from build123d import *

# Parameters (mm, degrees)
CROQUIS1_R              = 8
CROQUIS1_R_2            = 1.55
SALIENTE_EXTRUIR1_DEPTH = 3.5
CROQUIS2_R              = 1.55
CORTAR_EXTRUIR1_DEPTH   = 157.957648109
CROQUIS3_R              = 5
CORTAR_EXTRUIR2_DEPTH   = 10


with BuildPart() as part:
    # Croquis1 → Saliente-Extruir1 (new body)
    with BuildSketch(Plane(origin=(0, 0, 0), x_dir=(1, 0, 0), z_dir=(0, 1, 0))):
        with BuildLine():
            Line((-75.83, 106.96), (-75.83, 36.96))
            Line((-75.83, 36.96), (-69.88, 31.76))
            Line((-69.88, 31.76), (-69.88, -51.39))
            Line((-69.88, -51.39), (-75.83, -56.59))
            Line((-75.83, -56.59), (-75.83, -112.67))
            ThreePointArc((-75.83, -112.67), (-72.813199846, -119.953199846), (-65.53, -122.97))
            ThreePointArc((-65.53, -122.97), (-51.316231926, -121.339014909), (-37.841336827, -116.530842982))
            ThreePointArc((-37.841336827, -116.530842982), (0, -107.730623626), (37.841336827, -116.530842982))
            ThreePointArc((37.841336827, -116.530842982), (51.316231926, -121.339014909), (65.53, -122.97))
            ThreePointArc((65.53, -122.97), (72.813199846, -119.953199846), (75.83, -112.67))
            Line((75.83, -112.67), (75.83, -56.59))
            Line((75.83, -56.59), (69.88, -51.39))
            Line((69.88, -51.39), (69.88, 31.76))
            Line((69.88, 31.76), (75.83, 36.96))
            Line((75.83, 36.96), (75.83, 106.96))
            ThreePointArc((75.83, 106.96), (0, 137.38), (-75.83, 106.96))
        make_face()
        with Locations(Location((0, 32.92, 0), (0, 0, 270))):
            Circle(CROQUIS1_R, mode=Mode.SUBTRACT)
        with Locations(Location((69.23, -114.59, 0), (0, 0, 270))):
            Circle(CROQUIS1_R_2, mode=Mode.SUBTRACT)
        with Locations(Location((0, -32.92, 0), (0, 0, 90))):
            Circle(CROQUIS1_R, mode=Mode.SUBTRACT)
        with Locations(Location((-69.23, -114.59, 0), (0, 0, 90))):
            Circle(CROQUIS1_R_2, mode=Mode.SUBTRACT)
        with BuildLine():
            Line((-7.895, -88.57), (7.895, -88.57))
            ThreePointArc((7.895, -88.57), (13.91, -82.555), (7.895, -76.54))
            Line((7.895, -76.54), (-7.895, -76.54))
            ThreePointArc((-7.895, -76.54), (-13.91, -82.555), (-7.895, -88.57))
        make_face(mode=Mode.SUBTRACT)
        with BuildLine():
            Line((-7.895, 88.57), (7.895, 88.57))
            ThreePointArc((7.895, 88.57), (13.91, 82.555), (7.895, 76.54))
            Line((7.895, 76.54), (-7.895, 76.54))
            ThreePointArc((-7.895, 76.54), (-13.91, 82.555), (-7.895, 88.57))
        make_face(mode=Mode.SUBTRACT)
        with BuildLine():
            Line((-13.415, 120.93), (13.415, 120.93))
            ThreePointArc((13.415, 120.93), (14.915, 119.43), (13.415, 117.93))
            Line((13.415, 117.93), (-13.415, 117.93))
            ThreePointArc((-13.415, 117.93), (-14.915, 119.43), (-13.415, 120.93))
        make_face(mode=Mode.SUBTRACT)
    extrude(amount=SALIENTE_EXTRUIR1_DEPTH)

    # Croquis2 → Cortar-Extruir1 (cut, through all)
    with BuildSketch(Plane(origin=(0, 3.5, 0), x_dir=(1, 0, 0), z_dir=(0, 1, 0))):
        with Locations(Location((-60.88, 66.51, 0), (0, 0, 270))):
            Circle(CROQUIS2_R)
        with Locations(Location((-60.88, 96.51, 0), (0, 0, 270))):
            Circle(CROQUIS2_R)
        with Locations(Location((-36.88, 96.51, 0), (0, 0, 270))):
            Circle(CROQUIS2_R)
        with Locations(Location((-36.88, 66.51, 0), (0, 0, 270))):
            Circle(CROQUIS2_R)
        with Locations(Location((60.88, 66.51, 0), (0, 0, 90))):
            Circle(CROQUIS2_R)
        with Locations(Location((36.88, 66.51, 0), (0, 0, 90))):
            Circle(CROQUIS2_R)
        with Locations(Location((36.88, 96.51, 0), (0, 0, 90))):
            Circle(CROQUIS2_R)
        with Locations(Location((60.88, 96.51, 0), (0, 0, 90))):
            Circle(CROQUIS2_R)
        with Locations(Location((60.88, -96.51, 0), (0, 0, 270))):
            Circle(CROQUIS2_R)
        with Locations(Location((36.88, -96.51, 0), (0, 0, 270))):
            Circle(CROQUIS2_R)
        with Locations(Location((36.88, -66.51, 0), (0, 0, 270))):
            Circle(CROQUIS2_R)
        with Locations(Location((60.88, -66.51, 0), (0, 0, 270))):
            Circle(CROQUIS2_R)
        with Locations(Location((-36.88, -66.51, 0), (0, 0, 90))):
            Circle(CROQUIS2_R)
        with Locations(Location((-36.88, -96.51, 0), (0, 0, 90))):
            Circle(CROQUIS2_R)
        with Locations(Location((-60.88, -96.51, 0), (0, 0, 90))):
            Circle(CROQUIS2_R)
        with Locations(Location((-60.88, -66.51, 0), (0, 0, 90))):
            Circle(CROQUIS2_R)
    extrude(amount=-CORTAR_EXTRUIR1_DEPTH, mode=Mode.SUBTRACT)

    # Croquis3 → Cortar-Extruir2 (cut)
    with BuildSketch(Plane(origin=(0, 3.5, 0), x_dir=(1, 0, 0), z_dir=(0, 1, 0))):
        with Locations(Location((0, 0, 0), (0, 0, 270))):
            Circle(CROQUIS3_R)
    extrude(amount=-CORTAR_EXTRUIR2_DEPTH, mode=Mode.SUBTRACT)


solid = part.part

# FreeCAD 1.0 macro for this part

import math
import FreeCAD as App
import Part
import Sketcher
from FreeCAD import Vector
Q = App.Units.Quantity

doc = App.newDocument("Part")
body = doc.addObject("PartDesign::Body", "Body")

sketch1 = body.newObject("Sketcher::SketchObject", "Sketch")
sketch1.AttachmentSupport = (doc.getObject("XZ_Plane"), [""])
sketch1.MapMode = "FlatFace"
sketch1.addGeometry(Part.LineSegment(Vector(-75.8, -107, 0), Vector(-75.8, -37, 0)), False)
sketch1.addGeometry(Part.LineSegment(Vector(-75.8, -37, 0), Vector(-69.9, -31.8, 0)), False)
sketch1.addGeometry(Part.LineSegment(Vector(-69.9, -31.8, 0), Vector(-69.9, 51.4, 0)), False)
sketch1.addGeometry(Part.LineSegment(Vector(-69.9, 51.4, 0), Vector(-75.8, 56.6, 0)), False)
sketch1.addGeometry(Part.LineSegment(Vector(-75.8, 56.6, 0), Vector(-75.8, 112.7, 0)), False)
sketch1.addGeometry(Part.ArcOfCircle(Part.Circle(Vector(-65.5, 112.7, 0), Vector(0, 0, 1), 10.3), math.radians(90), math.radians(180)), False)
sketch1.addGeometry(Part.ArcOfCircle(Part.Circle(Vector(-65.5, 60.2, 0), Vector(0, 0, 1), 62.8), math.radians(64), math.radians(90)), False)
sketch1.addGeometry(Part.ArcOfCircle(Part.Circle(Vector(0, 193.5, 0), Vector(0, 0, 1), 85.8), math.radians(-116), math.radians(-64)), False)
sketch1.addGeometry(Part.ArcOfCircle(Part.Circle(Vector(65.5, 60.2, 0), Vector(0, 0, 1), 62.8), math.radians(90), math.radians(116)), False)
sketch1.addGeometry(Part.ArcOfCircle(Part.Circle(Vector(65.5, 112.7, 0), Vector(0, 0, 1), 10.3), math.radians(0), math.radians(90)), False)
sketch1.addGeometry(Part.LineSegment(Vector(75.8, 112.7, 0), Vector(75.8, 56.6, 0)), False)
sketch1.addGeometry(Part.LineSegment(Vector(75.8, 56.6, 0), Vector(69.9, 51.4, 0)), False)
sketch1.addGeometry(Part.LineSegment(Vector(69.9, 51.4, 0), Vector(69.9, -31.8, 0)), False)
sketch1.addGeometry(Part.LineSegment(Vector(69.9, -31.8, 0), Vector(75.8, -37, 0)), False)
sketch1.addGeometry(Part.LineSegment(Vector(75.8, -37, 0), Vector(75.8, -107, 0)), False)
sketch1.addGeometry(Part.ArcOfCircle(Part.Circle(Vector(0, -27.7, 0), Vector(0, 0, 1), 109.7), math.radians(-134), math.radians(-46)), False)
sketch1.addGeometry(Part.Circle(Vector(-69.2, 114.6, 0), Vector(0, 0, 1), 1.6), False)
sketch1.addGeometry(Part.LineSegment(Vector(7.9, 88.6, 0), Vector(-7.9, 88.6, 0)), False)
sketch1.addGeometry(Part.ArcOfCircle(Part.Circle(Vector(-7.9, 82.6, 0), Vector(0, 0, 1), 6), math.radians(90), math.radians(270)), False)
sketch1.addGeometry(Part.LineSegment(Vector(-7.9, 76.5, 0), Vector(7.9, 76.5, 0)), False)
sketch1.addGeometry(Part.ArcOfCircle(Part.Circle(Vector(7.9, 82.6, 0), Vector(0, 0, 1), 6), math.radians(-90), math.radians(90)), False)
sketch1.addGeometry(Part.Circle(Vector(0, 32.9, 0), Vector(0, 0, 1), 8), False)
sketch1.addGeometry(Part.Circle(Vector(69.2, 114.6, 0), Vector(0, 0, 1), 1.6), False)
sketch1.addGeometry(Part.Circle(Vector(0, -32.9, 0), Vector(0, 0, 1), 8), False)
sketch1.addGeometry(Part.ArcOfCircle(Part.Circle(Vector(-7.9, -82.6, 0), Vector(0, 0, 1), 6), math.radians(90), math.radians(270)), False)
sketch1.addGeometry(Part.LineSegment(Vector(-7.9, -88.6, 0), Vector(7.9, -88.6, 0)), False)
sketch1.addGeometry(Part.ArcOfCircle(Part.Circle(Vector(7.9, -82.6, 0), Vector(0, 0, 1), 6), math.radians(-90), math.radians(90)), False)
sketch1.addGeometry(Part.LineSegment(Vector(7.9, -76.5, 0), Vector(-7.9, -76.5, 0)), False)
sketch1.addGeometry(Part.ArcOfCircle(Part.Circle(Vector(-13.4, -119.4, 0), Vector(0, 0, 1), 1.5), math.radians(90), math.radians(270)), False)
sketch1.addGeometry(Part.LineSegment(Vector(-13.4, -120.9, 0), Vector(13.4, -120.9, 0)), False)
sketch1.addGeometry(Part.ArcOfCircle(Part.Circle(Vector(13.4, -119.4, 0), Vector(0, 0, 1), 1.5), math.radians(-90), math.radians(90)), False)
sketch1.addGeometry(Part.LineSegment(Vector(13.4, -117.9, 0), Vector(-13.4, -117.9, 0)), False)
sketch1.addConstraint(Sketcher.Constraint("Coincident", 0, 2, 1, 1))
sketch1.addConstraint(Sketcher.Constraint("Coincident", 1, 2, 2, 1))
sketch1.addConstraint(Sketcher.Constraint("Coincident", 2, 2, 3, 1))
sketch1.addConstraint(Sketcher.Constraint("Coincident", 3, 2, 4, 1))
sketch1.addConstraint(Sketcher.Constraint("Tangent", 4, 2, 5, 2))
sketch1.addConstraint(Sketcher.Constraint("Tangent", 5, 1, 6, 2))
sketch1.addConstraint(Sketcher.Constraint("Tangent", 6, 1, 7, 1))
sketch1.addConstraint(Sketcher.Constraint("Tangent", 7, 2, 8, 2))
sketch1.addConstraint(Sketcher.Constraint("Tangent", 8, 1, 9, 2))
sketch1.addConstraint(Sketcher.Constraint("Tangent", 9, 1, 10, 1))
sketch1.addConstraint(Sketcher.Constraint("Coincident", 10, 2, 11, 1))
sketch1.addConstraint(Sketcher.Constraint("Coincident", 11, 2, 12, 1))
sketch1.addConstraint(Sketcher.Constraint("Coincident", 12, 2, 13, 1))
sketch1.addConstraint(Sketcher.Constraint("Coincident", 13, 2, 14, 1))
sketch1.addConstraint(Sketcher.Constraint("Coincident", 14, 2, 15, 2))
sketch1.addConstraint(Sketcher.Constraint("Coincident", 15, 1, 0, 1))
sketch1.addConstraint(Sketcher.Constraint("Tangent", 17, 2, 18, 1))
sketch1.addConstraint(Sketcher.Constraint("Tangent", 18, 2, 19, 1))
sketch1.addConstraint(Sketcher.Constraint("Tangent", 19, 2, 20, 1))
sketch1.addConstraint(Sketcher.Constraint("Tangent", 20, 2, 17, 1))
sketch1.addConstraint(Sketcher.Constraint("Tangent", 24, 2, 25, 1))
sketch1.addConstraint(Sketcher.Constraint("Tangent", 25, 2, 26, 1))
sketch1.addConstraint(Sketcher.Constraint("Tangent", 26, 2, 27, 1))
sketch1.addConstraint(Sketcher.Constraint("Tangent", 27, 2, 24, 1))
sketch1.addConstraint(Sketcher.Constraint("Tangent", 28, 2, 29, 1))
sketch1.addConstraint(Sketcher.Constraint("Tangent", 29, 2, 30, 1))
sketch1.addConstraint(Sketcher.Constraint("Tangent", 30, 2, 31, 1))
sketch1.addConstraint(Sketcher.Constraint("Tangent", 31, 2, 28, 1))
sketch1.addConstraint(Sketcher.Constraint("Vertical", 0))
sketch1.addConstraint(Sketcher.Constraint("Vertical", 2))
sketch1.addConstraint(Sketcher.Constraint("Vertical", 4))
sketch1.addConstraint(Sketcher.Constraint("Vertical", 10))
sketch1.addConstraint(Sketcher.Constraint("Vertical", 12))
sketch1.addConstraint(Sketcher.Constraint("Vertical", 14))
sketch1.addConstraint(Sketcher.Constraint("Horizontal", 17))
sketch1.addConstraint(Sketcher.Constraint("Horizontal", 19))
sketch1.addConstraint(Sketcher.Constraint("Horizontal", 25))
sketch1.addConstraint(Sketcher.Constraint("Horizontal", 27))
sketch1.addConstraint(Sketcher.Constraint("Horizontal", 29))
sketch1.addConstraint(Sketcher.Constraint("Horizontal", 31))
sketch1.addConstraint(Sketcher.Constraint("Equal", 6, 8))
sketch1.addConstraint(Sketcher.Constraint("Equal", 5, 9))
sketch1.addConstraint(Sketcher.Constraint("Equal", 16, 22))
sketch1.addConstraint(Sketcher.Constraint("Equal", 21, 23))
sketch1.addConstraint(Sketcher.Constraint("Equal", 20, 24))
sketch1.addConstraint(Sketcher.Constraint("Symmetric", 21, 3, 23, 3, -1, 1))
sketch1.addConstraint(Sketcher.Constraint("Symmetric", 20, 3, 24, 3, -1, 1))
sketch1.addConstraint(Sketcher.Constraint("Symmetric", 6, 3, 8, 3, -2))
sketch1.addConstraint(Sketcher.Constraint("Symmetric", 16, 3, 22, 3, -2))
sketch1.addConstraint(Sketcher.Constraint("Symmetric", 3, 2, 10, 2, -2))
sketch1.addConstraint(Sketcher.Constraint("Symmetric", 2, 2, 11, 2, -2))
sketch1.addConstraint(Sketcher.Constraint("Symmetric", 0, 2, 13, 2, -2))
sketch1.addConstraint(Sketcher.Constraint("PointOnObject", 15, 3, -2))
sketch1.addConstraint(Sketcher.Constraint("PointOnObject", 21, 3, -2))
sketch1.addConstraint(Sketcher.Constraint("Parallel", 1, 11))
sketch1.addConstraint(Sketcher.Constraint("Parallel", 3, 13))
sketch1.addConstraint(Sketcher.Constraint("Vertical", 5, 3, 6, 3))
sketch1.addConstraint(Sketcher.Constraint("Vertical", 18, 3, 24, 3))
sketch1.addConstraint(Sketcher.Constraint("Vertical", 20, 3, 26, 3))
sketch1.addConstraint(Sketcher.Constraint("Vertical", 0, 2, 3, 2))
sketch1.addConstraint(Sketcher.Constraint("Diameter", 21, Q("16 mm")))
sketch1.addConstraint(Sketcher.Constraint("Diameter", 16, Q("3.1 mm")))
sketch1.addConstraint(Sketcher.Constraint("Radius", 5, Q("10.3 mm")))
sketch1.addConstraint(Sketcher.Constraint("Radius", 28, Q("1.5 mm")))
sketch1.addConstraint(Sketcher.Constraint("DistanceY", 0, 1, 0, 2, Q("70 mm")))
sketch1.addConstraint(Sketcher.Constraint("Radius", 18, Q("6.015 mm")))
sketch1.addConstraint(Sketcher.Constraint("DistanceY", 3, 2, 16, 3, Q("58 mm")))
sketch1.addConstraint(Sketcher.Constraint("DistanceX", 17, 2, 17, 1, Q("15.79 mm")))
sketch1.addConstraint(Sketcher.Constraint("DistanceX", 29, 1, 29, 2, Q("26.83 mm")))
sketch1.addConstraint(Sketcher.Constraint("DistanceY", 2, 1, 2, 2, Q("83.15 mm")))
sketch1.addConstraint(Sketcher.Constraint("DistanceY", 4, 1, 4, 2, Q("56.08 mm")))
sketch1.addConstraint(Sketcher.Constraint("DistanceX", 16, 3, 5, 3, Q("3.7 mm")))
sketch1.addConstraint(Sketcher.Constraint("DistanceY", 0, 2, 1, 2, Q("5.2 mm")))
sketch1.addConstraint(Sketcher.Constraint("DistanceX", 5, 3, -1, 1, Q("65.53 mm")))
sketch1.addConstraint(Sketcher.Constraint("DistanceY", -1, 1, 5, 3, Q("112.67 mm")))
sketch1.addConstraint(Sketcher.Constraint("DistanceY", -1, 1, 21, 3, Q("32.92 mm")))
sketch1.addConstraint(Sketcher.Constraint("DistanceY", 28, 3, -1, 1, Q("119.43 mm")))
sketch1.addConstraint(Sketcher.Constraint("DistanceX", 1, 2, -1, 1, Q("69.88 mm")))
sketch1.addConstraint(Sketcher.Constraint("DistanceY", -1, 1, 17, 2, Q("88.57 mm")))
sketch1.addConstraint(Sketcher.Constraint("Radius", 7, Q("85.75983 mm")))
sketch1.addConstraint(Sketcher.Constraint("DistanceX", 28, 3, 24, 3, Q("5.52 mm")))
sketch1.addConstraint(Sketcher.Constraint("Radius", 6, Q("62.750824 mm")))
sketch1.addConstraint(Sketcher.Constraint("Radius", 15, Q("109.723296 mm")))
pad1 = body.newObject("PartDesign::Pad", "Pad")
pad1.Profile = sketch1
pad1.Length = 3.5
pad1.Reversed = True

sketch2 = body.newObject("Sketcher::SketchObject", "Sketch001")
sketch2.AttachmentSupport = (doc.getObject("XZ_Plane"), [""])
sketch2.MapMode = "FlatFace"
sketch2.AttachmentOffset = App.Placement(Vector(0, 0, -3.5), App.Rotation())
sketch2.addGeometry(Part.Circle(Vector(-60.9, -66.5, 0), Vector(0, 0, 1), 1.6), False)
sketch2.addGeometry(Part.Circle(Vector(-60.9, -96.5, 0), Vector(0, 0, 1), 1.6), False)
sketch2.addGeometry(Part.Circle(Vector(-36.9, -96.5, 0), Vector(0, 0, 1), 1.6), False)
sketch2.addGeometry(Part.Circle(Vector(-36.9, -66.5, 0), Vector(0, 0, 1), 1.6), False)
sketch2.addGeometry(Part.Circle(Vector(60.9, -66.5, 0), Vector(0, 0, 1), 1.6), False)
sketch2.addGeometry(Part.Circle(Vector(36.9, -66.5, 0), Vector(0, 0, 1), 1.6), False)
sketch2.addGeometry(Part.Circle(Vector(36.9, -96.5, 0), Vector(0, 0, 1), 1.6), False)
sketch2.addGeometry(Part.Circle(Vector(60.9, -96.5, 0), Vector(0, 0, 1), 1.6), False)
sketch2.addGeometry(Part.Circle(Vector(60.9, 96.5, 0), Vector(0, 0, 1), 1.6), False)
sketch2.addGeometry(Part.Circle(Vector(36.9, 96.5, 0), Vector(0, 0, 1), 1.6), False)
sketch2.addGeometry(Part.Circle(Vector(36.9, 66.5, 0), Vector(0, 0, 1), 1.6), False)
sketch2.addGeometry(Part.Circle(Vector(60.9, 66.5, 0), Vector(0, 0, 1), 1.6), False)
sketch2.addGeometry(Part.Circle(Vector(-36.9, 66.5, 0), Vector(0, 0, 1), 1.6), False)
sketch2.addGeometry(Part.Circle(Vector(-36.9, 96.5, 0), Vector(0, 0, 1), 1.6), False)
sketch2.addGeometry(Part.Circle(Vector(-60.9, 96.5, 0), Vector(0, 0, 1), 1.6), False)
sketch2.addGeometry(Part.Circle(Vector(-60.9, 66.5, 0), Vector(0, 0, 1), 1.6), False)
sketch2.addConstraint(Sketcher.Constraint("Equal", 0, 1))
sketch2.addConstraint(Sketcher.Constraint("Equal", 1, 2))
sketch2.addConstraint(Sketcher.Constraint("Equal", 2, 3))
sketch2.addConstraint(Sketcher.Constraint("Equal", 3, 4))
sketch2.addConstraint(Sketcher.Constraint("Equal", 4, 5))
sketch2.addConstraint(Sketcher.Constraint("Equal", 5, 6))
sketch2.addConstraint(Sketcher.Constraint("Equal", 6, 7))
sketch2.addConstraint(Sketcher.Constraint("Equal", 7, 8))
sketch2.addConstraint(Sketcher.Constraint("Equal", 8, 9))
sketch2.addConstraint(Sketcher.Constraint("Equal", 9, 10))
sketch2.addConstraint(Sketcher.Constraint("Equal", 10, 11))
sketch2.addConstraint(Sketcher.Constraint("Equal", 11, 12))
sketch2.addConstraint(Sketcher.Constraint("Equal", 12, 13))
sketch2.addConstraint(Sketcher.Constraint("Equal", 13, 14))
sketch2.addConstraint(Sketcher.Constraint("Equal", 14, 15))
sketch2.addConstraint(Sketcher.Constraint("Symmetric", 1, 3, 8, 3, -1, 1))
sketch2.addConstraint(Sketcher.Constraint("Symmetric", 2, 3, 9, 3, -1, 1))
sketch2.addConstraint(Sketcher.Constraint("Symmetric", 3, 3, 10, 3, -1, 1))
sketch2.addConstraint(Sketcher.Constraint("Symmetric", 0, 3, 11, 3, -1, 1))
sketch2.addConstraint(Sketcher.Constraint("Symmetric", 5, 3, 12, 3, -1, 1))
sketch2.addConstraint(Sketcher.Constraint("Symmetric", 6, 3, 13, 3, -1, 1))
sketch2.addConstraint(Sketcher.Constraint("Symmetric", 7, 3, 14, 3, -1, 1))
sketch2.addConstraint(Sketcher.Constraint("Symmetric", 4, 3, 15, 3, -1, 1))
sketch2.addConstraint(Sketcher.Constraint("Symmetric", 0, 3, 4, 3, -2))
sketch2.addConstraint(Sketcher.Constraint("Symmetric", 3, 3, 5, 3, -2))
sketch2.addConstraint(Sketcher.Constraint("Symmetric", 2, 3, 6, 3, -2))
sketch2.addConstraint(Sketcher.Constraint("Symmetric", 1, 3, 7, 3, -2))
sketch2.addConstraint(Sketcher.Constraint("Horizontal", 1, 3, 2, 3))
sketch2.addConstraint(Sketcher.Constraint("Horizontal", 0, 3, 3, 3))
sketch2.addConstraint(Sketcher.Constraint("Vertical", 0, 3, 1, 3))
sketch2.addConstraint(Sketcher.Constraint("Vertical", 2, 3, 3, 3))
sketch2.addConstraint(Sketcher.Constraint("Diameter", 0, Q("3.1 mm")))
sketch2.addConstraint(Sketcher.Constraint("DistanceY", 1, 3, 0, 3, Q("30 mm")))
sketch2.addConstraint(Sketcher.Constraint("DistanceX", 1, 3, 2, 3, Q("24 mm")))
sketch2.addConstraint(Sketcher.Constraint("DistanceX", 0, 3, -1, 1, Q("60.88 mm")))
sketch2.addConstraint(Sketcher.Constraint("DistanceY", 0, 3, -1, 1, Q("66.51 mm")))
pocket1 = body.newObject("PartDesign::Pocket", "Pocket")
pocket1.Profile = sketch2
pocket1.Type = "ThroughAll"
pocket1.Reversed = True

sketch3 = body.newObject("Sketcher::SketchObject", "Sketch002")
sketch3.AttachmentSupport = (doc.getObject("XZ_Plane"), [""])
sketch3.MapMode = "FlatFace"
sketch3.AttachmentOffset = App.Placement(Vector(0, 0, -3.5), App.Rotation())
sketch3.addGeometry(Part.Circle(Vector(0, 0, 0), Vector(0, 0, 1), 5), False)
sketch3.addConstraint(Sketcher.Constraint("Coincident", 0, 3, -1, 1))
sketch3.addConstraint(Sketcher.Constraint("Diameter", 0, Q("10 mm")))
pocket2 = body.newObject("PartDesign::Pocket", "Pocket001")
pocket2.Profile = sketch3
pocket2.Length = 10
pocket2.Reversed = True

doc.recompute()
